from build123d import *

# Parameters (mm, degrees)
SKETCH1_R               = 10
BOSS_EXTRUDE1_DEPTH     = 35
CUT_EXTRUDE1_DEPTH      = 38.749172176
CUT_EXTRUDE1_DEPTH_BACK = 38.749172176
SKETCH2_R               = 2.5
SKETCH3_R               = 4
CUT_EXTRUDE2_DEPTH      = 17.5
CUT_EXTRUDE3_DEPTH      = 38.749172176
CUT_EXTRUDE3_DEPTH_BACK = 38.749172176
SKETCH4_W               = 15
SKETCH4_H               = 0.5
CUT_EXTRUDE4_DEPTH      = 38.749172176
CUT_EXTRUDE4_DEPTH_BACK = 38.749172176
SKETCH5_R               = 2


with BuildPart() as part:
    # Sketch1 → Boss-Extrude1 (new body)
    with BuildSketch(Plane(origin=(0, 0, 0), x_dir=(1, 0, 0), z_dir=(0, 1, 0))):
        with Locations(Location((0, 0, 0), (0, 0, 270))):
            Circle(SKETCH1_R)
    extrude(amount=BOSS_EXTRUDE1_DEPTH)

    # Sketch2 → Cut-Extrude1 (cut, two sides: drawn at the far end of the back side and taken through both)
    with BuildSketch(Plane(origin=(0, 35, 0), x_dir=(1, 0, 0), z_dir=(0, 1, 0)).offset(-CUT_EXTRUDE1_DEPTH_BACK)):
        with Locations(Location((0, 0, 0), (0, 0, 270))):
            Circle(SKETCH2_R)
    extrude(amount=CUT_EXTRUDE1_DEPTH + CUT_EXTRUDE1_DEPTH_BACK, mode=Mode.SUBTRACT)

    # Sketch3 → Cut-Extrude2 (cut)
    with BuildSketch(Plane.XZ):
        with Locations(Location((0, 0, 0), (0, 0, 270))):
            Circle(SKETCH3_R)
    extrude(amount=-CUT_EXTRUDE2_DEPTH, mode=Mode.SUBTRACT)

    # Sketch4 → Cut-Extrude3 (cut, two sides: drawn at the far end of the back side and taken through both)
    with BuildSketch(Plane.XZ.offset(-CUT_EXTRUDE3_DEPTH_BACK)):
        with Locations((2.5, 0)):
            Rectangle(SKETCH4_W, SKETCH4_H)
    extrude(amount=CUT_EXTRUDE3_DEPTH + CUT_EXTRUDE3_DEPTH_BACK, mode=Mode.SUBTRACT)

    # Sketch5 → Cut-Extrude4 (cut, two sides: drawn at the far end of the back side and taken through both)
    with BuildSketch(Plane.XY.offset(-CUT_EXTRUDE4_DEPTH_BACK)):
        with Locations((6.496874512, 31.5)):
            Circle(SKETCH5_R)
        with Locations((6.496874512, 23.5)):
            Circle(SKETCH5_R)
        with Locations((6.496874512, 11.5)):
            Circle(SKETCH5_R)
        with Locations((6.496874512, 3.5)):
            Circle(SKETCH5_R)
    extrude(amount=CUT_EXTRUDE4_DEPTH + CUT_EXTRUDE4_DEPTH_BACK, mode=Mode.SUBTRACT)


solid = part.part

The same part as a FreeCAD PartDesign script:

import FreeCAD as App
import Part
import Sketcher
Q = App.Units.Quantity


def add_polygon(sketch, points):
    """Adds a closed chain of lines whose ends are joined by coincident constraints."""
    first, n = sketch.GeometryCount, len(points)
    for a, b in zip(points, points[1:] + points[:1]):
        sketch.addGeometry(Part.LineSegment(App.Vector(*a, 0), App.Vector(*b, 0)), False)
    for i in range(n):
        sketch.addConstraint(Sketcher.Constraint("Coincident", first + i, 2, first + (i + 1) % n, 1))

doc = App.newDocument("Part")
body = doc.addObject("PartDesign::Body", "Body")

sketch1 = body.newObject("Sketcher::SketchObject", "Sketch")
sketch1.AttachmentSupport = (doc.getObject("XZ_Plane"), [""])
sketch1.MapMode = "FlatFace"
sketch1.addGeometry(Part.Circle(App.Vector(0, 0, 0), App.Vector(0, 0, 1), 10), False)
sketch1.addConstraint(Sketcher.Constraint("Coincident", 0, 3, -1, 1))
sketch1.addConstraint(Sketcher.Constraint("Diameter", 0, Q("20 mm")))
pad1 = body.newObject("PartDesign::Pad", "Pad")
pad1.Profile = sketch1
pad1.Length = 35
pad1.Reversed = True

sketch2 = body.newObject("Sketcher::SketchObject", "Sketch001")
sketch2.AttachmentSupport = (doc.getObject("XZ_Plane"), [""])
sketch2.MapMode = "FlatFace"
sketch2.AttachmentOffset = App.Placement(App.Vector(0, 0, -35), App.Rotation())
sketch2.addGeometry(Part.Circle(App.Vector(0, 0, 0), App.Vector(0, 0, 1), 2.5), False)
sketch2.addConstraint(Sketcher.Constraint("Coincident", 0, 3, -1, 1))
sketch2.addConstraint(Sketcher.Constraint("Diameter", 0, Q("5 mm")))
pocket1 = body.newObject("PartDesign::Pocket", "Pocket")
pocket1.Profile = sketch2
pocket1.Type = "ThroughAll"
pocket1.Midplane = True

sketch3 = body.newObject("Sketcher::SketchObject", "Sketch002")
sketch3.AttachmentSupport = (doc.getObject("XZ_Plane"), [""])
sketch3.MapMode = "FlatFace"
sketch3.addGeometry(Part.Circle(App.Vector(0, 0, 0), App.Vector(0, 0, 1), 4), False)
sketch3.addConstraint(Sketcher.Constraint("Coincident", 0, 3, -1, 1))
sketch3.addConstraint(Sketcher.Constraint("Diameter", 0, Q("8 mm")))
pocket2 = body.newObject("PartDesign::Pocket", "Pocket001")
pocket2.Profile = sketch3
pocket2.Length = 17.5

sketch4 = body.newObject("Sketcher::SketchObject", "Sketch003")
sketch4.AttachmentSupport = (doc.getObject("XZ_Plane"), [""])
sketch4.MapMode = "FlatFace"
add_polygon(sketch4, [(-5, 0.2), (-5, -0.2), (10, -0.2), (10, 0.2)])
sketch4.addConstraint(Sketcher.Constraint("Vertical", 0))
sketch4.addConstraint(Sketcher.Constraint("Horizontal", 1))
sketch4.addConstraint(Sketcher.Constraint("Vertical", 2))
sketch4.addConstraint(Sketcher.Constraint("Horizontal", 3))
sketch4.addConstraint(Sketcher.Constraint("DistanceX", 1, 1, 1, 2, Q("15 mm")))
sketch4.addConstraint(Sketcher.Constraint("DistanceY", 0, 2, 0, 1, Q("0.5 mm")))
sketch4.addConstraint(Sketcher.Constraint("DistanceX", 0, 2, -1, 1, Q("5 mm")))
sketch4.addConstraint(Sketcher.Constraint("DistanceY", 0, 2, -1, 1, Q("0.25 mm")))
pocket3 = body.newObject("PartDesign::Pocket", "Pocket002")
pocket3.Profile = sketch4
pocket3.Type = "ThroughAll"
pocket3.Midplane = True

sketch5 = body.newObject("Sketcher::SketchObject", "Sketch004")
sketch5.AttachmentSupport = (doc.getObject("XY_Plane"), [""])
sketch5.MapMode = "FlatFace"
sketch5.addGeometry(Part.Circle(App.Vector(6.5, 31.5, 0), App.Vector(0, 0, 1), 2), False)
sketch5.addGeometry(Part.Circle(App.Vector(6.5, 23.5, 0), App.Vector(0, 0, 1), 2), False)
sketch5.addGeometry(Part.Circle(App.Vector(6.5, 11.5, 0), App.Vector(0, 0, 1), 2), False)
sketch5.addGeometry(Part.Circle(App.Vector(6.5, 3.5, 0), App.Vector(0, 0, 1), 2), False)
sketch5.addConstraint(Sketcher.Constraint("Equal", 0, 1))
sketch5.addConstraint(Sketcher.Constraint("Equal", 1, 2))
sketch5.addConstraint(Sketcher.Constraint("Equal", 2, 3))
sketch5.addConstraint(Sketcher.Constraint("Vertical", 0, 3, 1, 3))
sketch5.addConstraint(Sketcher.Constraint("Vertical", 1, 3, 2, 3))
sketch5.addConstraint(Sketcher.Constraint("Vertical", 2, 3, 3, 3))
sketch5.addConstraint(Sketcher.Constraint("Diameter", 0, Q("4 mm")))
sketch5.addConstraint(Sketcher.Constraint("DistanceY", 1, 3, 0, 3, Q("8 mm")))
sketch5.addConstraint(Sketcher.Constraint("DistanceY", 2, 3, 1, 3, Q("12 mm")))
sketch5.addConstraint(Sketcher.Constraint("DistanceY", 3, 3, 2, 3, Q("8 mm")))
sketch5.addConstraint(Sketcher.Constraint("DistanceY", -1, 1, 0, 3, Q("31.5 mm")))
sketch5.addConstraint(Sketcher.Constraint("DistanceX", -1, 1, 0, 3, Q("6.496875 mm")))
pocket4 = body.newObject("PartDesign::Pocket", "Pocket003")
pocket4.Profile = sketch5
pocket4.Type = "ThroughAll"
pocket4.Midplane = True

doc.recompute()
